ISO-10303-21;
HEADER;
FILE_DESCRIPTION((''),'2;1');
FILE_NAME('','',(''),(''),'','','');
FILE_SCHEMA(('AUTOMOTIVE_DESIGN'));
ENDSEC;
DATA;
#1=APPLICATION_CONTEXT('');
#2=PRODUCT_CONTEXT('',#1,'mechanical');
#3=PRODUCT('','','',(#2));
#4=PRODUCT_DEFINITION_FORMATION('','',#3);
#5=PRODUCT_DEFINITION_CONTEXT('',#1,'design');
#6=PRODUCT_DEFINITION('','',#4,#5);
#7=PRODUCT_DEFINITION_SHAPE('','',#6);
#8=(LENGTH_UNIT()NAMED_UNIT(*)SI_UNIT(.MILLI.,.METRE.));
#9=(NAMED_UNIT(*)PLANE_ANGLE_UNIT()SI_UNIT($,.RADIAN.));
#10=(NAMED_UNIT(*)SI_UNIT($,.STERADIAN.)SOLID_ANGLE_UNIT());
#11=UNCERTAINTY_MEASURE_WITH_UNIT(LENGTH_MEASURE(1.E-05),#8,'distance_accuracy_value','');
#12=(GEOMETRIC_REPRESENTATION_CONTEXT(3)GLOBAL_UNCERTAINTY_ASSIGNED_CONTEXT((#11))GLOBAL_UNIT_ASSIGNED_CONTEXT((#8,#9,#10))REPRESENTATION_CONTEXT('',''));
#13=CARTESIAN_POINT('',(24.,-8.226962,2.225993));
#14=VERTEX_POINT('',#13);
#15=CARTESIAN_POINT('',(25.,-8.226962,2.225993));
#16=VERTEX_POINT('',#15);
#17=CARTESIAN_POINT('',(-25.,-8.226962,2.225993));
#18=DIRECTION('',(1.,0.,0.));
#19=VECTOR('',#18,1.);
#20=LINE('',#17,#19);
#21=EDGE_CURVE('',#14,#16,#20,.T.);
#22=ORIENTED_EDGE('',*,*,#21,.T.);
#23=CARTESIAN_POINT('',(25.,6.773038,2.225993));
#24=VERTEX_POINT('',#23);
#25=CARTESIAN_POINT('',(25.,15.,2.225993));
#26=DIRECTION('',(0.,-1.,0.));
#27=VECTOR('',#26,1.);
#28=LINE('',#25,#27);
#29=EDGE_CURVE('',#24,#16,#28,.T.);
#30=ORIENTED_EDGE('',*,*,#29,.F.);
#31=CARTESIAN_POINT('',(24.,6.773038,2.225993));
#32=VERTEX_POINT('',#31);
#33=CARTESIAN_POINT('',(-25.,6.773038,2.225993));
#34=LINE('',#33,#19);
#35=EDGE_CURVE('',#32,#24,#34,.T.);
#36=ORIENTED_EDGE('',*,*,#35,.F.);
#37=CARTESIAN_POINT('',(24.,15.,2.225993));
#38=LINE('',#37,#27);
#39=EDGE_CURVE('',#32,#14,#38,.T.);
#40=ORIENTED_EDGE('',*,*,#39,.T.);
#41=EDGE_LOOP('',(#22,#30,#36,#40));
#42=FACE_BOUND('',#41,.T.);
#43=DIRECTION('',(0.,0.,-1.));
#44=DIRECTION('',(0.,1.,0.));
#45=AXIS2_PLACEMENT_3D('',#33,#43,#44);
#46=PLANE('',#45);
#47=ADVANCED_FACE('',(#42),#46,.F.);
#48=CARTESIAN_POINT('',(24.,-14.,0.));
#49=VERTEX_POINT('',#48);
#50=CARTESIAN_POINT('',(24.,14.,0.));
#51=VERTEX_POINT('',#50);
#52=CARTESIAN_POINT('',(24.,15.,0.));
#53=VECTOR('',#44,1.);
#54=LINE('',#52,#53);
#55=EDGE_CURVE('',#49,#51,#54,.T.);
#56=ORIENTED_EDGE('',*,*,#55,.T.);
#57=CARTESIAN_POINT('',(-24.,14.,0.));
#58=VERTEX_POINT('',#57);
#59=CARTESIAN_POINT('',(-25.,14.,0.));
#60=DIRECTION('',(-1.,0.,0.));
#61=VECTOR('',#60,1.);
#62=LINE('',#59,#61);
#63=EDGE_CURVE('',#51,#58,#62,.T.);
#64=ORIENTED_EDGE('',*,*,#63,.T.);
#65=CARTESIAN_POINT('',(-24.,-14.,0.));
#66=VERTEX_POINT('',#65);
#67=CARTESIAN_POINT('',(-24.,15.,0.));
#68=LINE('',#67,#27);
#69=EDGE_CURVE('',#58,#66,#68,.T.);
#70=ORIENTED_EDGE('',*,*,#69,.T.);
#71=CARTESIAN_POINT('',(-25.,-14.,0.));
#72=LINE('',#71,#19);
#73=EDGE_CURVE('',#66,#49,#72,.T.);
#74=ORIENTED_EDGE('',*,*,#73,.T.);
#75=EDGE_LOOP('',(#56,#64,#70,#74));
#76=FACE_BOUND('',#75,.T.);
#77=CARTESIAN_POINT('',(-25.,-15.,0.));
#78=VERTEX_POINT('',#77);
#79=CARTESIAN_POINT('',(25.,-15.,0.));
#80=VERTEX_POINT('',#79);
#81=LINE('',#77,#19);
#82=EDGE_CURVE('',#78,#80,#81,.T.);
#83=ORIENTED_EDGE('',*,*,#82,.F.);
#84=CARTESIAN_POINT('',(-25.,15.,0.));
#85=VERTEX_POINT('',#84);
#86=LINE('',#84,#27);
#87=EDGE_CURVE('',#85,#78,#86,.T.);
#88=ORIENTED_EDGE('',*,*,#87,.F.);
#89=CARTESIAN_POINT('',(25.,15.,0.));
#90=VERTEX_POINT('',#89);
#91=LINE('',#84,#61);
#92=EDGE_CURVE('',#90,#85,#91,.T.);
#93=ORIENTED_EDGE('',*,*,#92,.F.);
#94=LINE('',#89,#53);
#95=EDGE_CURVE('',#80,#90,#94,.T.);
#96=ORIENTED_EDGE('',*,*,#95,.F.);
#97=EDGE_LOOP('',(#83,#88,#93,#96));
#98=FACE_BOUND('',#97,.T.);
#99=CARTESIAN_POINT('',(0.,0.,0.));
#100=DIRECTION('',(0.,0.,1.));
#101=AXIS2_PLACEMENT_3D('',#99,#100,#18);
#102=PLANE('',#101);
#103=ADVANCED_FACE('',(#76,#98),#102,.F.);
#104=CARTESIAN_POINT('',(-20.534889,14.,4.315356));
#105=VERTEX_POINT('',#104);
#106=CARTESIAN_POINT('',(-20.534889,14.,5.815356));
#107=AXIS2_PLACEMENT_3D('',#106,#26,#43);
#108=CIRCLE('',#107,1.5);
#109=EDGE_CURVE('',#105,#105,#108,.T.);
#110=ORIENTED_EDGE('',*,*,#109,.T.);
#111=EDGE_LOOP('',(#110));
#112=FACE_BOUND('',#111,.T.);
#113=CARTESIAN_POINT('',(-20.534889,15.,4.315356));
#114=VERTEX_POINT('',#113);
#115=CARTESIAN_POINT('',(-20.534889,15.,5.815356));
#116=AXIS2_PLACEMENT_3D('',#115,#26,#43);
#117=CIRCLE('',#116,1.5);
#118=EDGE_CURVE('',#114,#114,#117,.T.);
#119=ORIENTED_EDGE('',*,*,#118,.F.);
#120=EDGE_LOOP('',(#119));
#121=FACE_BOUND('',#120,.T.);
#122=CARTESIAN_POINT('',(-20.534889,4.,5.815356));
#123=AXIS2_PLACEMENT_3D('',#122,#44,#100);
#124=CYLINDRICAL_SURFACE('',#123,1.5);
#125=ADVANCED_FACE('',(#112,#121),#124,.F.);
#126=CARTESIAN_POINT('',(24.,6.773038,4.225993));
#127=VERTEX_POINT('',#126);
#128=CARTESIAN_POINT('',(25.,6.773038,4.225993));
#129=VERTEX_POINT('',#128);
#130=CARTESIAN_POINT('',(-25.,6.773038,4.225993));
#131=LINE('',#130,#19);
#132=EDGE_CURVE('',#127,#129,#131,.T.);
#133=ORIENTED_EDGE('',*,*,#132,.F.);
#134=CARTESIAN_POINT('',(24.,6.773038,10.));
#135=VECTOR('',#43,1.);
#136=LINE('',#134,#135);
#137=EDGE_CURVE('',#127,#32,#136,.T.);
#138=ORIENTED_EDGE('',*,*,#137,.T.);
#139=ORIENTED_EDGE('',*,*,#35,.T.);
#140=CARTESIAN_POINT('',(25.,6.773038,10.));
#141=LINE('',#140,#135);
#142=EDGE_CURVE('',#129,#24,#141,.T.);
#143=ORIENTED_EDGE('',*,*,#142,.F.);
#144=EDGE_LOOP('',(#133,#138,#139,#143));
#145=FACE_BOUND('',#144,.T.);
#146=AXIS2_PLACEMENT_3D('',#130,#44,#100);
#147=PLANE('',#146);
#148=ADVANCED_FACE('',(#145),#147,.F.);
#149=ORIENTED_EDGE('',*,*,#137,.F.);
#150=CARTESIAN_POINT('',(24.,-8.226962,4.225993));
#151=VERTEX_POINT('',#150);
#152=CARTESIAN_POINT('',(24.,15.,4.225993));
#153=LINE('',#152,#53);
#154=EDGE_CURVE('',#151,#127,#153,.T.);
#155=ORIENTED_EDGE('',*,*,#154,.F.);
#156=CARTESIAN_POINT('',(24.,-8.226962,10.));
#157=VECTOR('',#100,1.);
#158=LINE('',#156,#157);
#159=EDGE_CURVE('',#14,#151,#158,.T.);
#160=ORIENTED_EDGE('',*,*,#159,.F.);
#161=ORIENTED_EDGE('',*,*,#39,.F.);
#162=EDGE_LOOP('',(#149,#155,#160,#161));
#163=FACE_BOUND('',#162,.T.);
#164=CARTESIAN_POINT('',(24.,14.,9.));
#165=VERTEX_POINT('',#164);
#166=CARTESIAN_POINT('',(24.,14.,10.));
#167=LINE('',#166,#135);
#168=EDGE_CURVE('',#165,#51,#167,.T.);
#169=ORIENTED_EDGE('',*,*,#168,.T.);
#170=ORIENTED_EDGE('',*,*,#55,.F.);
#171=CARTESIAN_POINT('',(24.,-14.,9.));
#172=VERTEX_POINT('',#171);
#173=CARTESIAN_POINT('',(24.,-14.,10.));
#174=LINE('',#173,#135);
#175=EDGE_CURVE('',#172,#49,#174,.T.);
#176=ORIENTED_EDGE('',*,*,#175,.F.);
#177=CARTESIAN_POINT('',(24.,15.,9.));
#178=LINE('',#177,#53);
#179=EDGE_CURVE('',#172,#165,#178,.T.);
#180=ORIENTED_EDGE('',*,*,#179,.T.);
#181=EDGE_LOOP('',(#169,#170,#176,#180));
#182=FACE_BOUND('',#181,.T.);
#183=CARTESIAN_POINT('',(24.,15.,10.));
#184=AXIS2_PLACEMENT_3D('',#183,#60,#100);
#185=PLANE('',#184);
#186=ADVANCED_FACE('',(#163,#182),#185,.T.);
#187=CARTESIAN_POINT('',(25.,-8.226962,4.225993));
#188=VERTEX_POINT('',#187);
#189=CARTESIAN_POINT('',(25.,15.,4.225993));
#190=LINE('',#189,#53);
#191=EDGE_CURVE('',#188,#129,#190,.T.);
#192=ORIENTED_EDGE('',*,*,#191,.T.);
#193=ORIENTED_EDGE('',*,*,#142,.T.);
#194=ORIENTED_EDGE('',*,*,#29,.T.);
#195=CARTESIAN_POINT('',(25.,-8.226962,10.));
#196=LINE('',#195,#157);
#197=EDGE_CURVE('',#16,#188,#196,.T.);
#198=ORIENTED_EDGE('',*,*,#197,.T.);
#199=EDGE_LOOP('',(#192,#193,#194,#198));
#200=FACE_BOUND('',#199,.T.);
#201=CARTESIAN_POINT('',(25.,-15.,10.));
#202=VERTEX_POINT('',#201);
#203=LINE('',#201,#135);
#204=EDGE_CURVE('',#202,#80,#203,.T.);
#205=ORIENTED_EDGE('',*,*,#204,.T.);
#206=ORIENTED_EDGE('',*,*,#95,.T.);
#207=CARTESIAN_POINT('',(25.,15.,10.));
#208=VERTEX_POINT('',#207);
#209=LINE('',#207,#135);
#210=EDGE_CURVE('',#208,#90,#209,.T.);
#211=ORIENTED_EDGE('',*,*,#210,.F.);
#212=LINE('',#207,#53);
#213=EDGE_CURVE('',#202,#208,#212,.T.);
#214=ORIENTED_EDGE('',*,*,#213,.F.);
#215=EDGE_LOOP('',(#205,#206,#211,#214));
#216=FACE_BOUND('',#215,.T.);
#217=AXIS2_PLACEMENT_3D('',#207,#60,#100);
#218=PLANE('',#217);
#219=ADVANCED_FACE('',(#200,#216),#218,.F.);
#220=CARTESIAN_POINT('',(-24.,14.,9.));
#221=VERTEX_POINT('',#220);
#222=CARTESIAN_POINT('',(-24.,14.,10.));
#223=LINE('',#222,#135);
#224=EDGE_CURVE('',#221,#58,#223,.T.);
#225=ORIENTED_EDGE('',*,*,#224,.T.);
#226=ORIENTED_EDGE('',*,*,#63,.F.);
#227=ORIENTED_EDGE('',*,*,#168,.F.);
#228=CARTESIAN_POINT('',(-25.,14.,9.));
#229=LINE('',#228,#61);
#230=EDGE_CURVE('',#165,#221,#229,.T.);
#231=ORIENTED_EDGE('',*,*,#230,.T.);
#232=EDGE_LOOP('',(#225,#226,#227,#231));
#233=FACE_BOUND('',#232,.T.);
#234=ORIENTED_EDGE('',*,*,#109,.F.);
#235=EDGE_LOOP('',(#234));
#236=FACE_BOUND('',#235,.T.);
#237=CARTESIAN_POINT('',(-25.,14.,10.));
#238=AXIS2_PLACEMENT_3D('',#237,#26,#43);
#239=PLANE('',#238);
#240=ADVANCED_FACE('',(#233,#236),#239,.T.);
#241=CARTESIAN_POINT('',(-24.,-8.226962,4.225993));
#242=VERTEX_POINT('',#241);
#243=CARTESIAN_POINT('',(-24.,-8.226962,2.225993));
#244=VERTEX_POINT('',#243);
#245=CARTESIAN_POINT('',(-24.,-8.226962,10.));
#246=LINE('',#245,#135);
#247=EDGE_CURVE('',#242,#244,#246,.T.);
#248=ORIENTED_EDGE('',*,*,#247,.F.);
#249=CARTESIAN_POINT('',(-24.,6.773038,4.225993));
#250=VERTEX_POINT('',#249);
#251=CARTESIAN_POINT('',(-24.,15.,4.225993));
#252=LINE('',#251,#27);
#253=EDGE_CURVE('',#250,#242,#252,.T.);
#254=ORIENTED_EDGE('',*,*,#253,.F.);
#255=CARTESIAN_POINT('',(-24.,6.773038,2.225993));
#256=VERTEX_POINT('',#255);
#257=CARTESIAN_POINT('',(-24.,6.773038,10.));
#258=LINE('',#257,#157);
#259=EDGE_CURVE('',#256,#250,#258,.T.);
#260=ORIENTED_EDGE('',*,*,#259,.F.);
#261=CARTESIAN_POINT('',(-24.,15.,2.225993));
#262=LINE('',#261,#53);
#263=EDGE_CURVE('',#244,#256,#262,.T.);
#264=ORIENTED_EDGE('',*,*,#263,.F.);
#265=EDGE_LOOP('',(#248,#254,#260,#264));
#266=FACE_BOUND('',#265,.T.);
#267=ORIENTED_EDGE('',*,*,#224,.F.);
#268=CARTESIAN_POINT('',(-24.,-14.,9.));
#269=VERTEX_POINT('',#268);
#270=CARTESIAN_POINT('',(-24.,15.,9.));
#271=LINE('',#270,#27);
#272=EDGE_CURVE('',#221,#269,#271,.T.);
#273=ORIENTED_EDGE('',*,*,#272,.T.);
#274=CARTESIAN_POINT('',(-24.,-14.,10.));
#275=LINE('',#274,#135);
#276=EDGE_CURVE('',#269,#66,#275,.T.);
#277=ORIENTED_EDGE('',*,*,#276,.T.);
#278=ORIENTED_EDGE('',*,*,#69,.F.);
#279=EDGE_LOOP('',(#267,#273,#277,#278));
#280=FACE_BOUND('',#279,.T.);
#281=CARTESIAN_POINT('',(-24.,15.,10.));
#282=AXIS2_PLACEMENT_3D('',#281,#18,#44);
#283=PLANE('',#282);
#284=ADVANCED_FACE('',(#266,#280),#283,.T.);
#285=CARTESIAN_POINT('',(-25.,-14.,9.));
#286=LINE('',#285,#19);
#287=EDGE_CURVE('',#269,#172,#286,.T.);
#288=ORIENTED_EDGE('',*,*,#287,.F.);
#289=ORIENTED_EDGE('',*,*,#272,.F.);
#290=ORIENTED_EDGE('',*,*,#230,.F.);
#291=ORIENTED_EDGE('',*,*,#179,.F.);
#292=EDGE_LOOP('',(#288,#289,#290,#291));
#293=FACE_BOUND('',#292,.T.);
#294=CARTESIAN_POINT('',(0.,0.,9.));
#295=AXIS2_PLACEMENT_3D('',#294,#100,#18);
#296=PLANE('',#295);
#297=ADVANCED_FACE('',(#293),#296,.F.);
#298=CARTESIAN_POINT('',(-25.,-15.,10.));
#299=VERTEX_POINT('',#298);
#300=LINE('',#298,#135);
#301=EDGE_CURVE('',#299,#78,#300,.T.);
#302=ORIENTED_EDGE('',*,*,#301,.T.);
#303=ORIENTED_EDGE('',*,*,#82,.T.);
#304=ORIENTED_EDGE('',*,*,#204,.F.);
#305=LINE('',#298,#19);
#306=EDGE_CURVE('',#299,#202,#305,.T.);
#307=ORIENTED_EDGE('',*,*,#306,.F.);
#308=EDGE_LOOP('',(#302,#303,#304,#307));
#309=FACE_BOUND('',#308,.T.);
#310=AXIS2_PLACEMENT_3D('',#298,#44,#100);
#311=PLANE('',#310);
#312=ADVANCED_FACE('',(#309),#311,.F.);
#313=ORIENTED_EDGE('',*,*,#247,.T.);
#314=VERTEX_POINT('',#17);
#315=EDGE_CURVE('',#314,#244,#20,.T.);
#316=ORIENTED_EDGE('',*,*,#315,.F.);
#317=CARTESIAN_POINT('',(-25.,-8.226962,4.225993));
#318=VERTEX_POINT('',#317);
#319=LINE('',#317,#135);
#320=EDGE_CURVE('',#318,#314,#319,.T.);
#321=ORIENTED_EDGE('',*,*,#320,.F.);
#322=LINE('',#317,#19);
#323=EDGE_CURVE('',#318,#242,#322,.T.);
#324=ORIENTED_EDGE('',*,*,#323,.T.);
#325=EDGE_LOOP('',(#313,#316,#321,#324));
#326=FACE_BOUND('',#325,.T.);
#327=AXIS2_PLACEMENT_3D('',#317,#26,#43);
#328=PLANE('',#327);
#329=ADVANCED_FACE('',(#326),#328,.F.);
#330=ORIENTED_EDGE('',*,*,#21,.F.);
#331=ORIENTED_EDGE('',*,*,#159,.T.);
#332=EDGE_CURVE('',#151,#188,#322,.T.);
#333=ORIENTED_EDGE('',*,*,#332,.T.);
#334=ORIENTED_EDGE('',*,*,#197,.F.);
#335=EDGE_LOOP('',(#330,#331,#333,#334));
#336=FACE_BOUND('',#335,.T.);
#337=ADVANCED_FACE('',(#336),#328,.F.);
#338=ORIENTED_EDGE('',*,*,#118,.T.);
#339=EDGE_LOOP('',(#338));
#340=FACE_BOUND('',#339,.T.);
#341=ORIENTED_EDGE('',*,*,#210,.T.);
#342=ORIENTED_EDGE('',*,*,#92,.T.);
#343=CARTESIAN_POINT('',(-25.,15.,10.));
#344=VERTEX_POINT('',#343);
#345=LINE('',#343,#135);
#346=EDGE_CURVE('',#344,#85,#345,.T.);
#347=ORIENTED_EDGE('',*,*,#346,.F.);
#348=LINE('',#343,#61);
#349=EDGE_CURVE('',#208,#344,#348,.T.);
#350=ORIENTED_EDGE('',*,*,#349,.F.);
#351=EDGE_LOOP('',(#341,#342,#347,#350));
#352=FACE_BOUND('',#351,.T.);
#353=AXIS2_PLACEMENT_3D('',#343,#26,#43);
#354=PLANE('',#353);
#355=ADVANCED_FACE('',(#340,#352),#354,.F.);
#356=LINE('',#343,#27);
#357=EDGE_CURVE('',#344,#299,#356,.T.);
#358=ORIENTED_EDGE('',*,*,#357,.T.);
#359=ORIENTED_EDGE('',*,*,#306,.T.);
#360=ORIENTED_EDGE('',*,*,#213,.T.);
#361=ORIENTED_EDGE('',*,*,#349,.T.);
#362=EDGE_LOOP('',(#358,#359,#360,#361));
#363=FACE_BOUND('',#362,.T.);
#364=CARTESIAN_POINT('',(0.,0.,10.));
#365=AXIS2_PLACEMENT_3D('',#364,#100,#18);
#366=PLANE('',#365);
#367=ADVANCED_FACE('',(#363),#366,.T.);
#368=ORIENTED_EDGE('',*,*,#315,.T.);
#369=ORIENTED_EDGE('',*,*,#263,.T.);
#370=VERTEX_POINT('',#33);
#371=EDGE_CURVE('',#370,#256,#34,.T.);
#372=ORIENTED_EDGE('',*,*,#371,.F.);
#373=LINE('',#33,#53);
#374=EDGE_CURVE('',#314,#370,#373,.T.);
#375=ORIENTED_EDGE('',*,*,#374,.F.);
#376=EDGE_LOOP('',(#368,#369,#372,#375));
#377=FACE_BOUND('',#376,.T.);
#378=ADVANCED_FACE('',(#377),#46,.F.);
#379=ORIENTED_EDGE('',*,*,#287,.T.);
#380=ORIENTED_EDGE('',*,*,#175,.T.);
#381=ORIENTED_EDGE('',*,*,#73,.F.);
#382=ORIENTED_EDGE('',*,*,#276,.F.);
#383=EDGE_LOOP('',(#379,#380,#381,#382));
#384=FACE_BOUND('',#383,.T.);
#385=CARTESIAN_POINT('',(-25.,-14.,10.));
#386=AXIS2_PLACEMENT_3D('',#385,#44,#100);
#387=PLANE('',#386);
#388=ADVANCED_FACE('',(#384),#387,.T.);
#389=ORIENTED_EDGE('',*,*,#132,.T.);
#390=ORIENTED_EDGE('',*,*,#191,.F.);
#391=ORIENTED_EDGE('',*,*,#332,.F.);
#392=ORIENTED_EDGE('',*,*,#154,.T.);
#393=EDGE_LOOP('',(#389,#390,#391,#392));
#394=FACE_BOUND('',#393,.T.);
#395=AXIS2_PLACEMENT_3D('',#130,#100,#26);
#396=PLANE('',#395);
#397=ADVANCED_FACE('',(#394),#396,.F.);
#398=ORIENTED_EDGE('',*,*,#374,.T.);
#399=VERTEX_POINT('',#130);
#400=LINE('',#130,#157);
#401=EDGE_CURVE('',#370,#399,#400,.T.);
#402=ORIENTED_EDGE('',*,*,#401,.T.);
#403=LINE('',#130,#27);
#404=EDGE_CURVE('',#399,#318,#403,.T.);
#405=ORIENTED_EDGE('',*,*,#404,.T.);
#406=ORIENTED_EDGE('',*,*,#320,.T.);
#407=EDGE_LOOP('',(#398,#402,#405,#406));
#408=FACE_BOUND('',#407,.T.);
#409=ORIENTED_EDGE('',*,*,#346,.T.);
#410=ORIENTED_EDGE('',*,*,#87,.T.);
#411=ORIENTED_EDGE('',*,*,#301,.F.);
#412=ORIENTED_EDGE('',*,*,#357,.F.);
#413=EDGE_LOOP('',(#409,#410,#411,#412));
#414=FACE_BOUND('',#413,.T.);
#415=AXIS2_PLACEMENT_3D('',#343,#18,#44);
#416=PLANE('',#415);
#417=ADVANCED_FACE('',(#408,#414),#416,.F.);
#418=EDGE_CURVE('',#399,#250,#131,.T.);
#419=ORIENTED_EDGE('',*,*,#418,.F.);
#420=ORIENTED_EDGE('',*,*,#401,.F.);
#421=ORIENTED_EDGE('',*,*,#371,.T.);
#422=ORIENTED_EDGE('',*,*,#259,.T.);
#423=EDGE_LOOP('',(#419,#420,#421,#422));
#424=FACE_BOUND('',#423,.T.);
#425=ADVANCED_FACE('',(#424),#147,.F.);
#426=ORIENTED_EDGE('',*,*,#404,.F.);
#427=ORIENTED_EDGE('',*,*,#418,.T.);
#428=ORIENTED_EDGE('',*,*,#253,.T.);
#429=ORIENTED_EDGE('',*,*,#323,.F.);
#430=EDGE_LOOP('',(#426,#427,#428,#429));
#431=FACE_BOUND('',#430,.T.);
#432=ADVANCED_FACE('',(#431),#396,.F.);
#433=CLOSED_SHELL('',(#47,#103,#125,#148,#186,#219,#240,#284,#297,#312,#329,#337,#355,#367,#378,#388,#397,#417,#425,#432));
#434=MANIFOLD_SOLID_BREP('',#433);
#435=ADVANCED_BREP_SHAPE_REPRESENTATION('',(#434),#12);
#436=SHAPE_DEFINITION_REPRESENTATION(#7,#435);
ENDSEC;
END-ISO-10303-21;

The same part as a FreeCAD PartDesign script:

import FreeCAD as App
import Part
import Sketcher
from FreeCAD import Vector
Q = App.Units.Quantity


def faces_at(feature, points):
    """Names of the faces that lie closest to the given points."""
    faces = feature.Shape.Faces
    near = lambda p: min(range(len(faces)), key=lambda i: faces[i].distToShape(Part.Vertex(*p))[0])
    return sorted({f"Face{near(p) + 1}" for p in points})


def add_polygon(sketch, points):
    """Adds a closed chain of lines whose ends are joined by coincident constraints."""
    first, n = sketch.GeometryCount, len(points)
    for a, b in zip(points, points[1:] + points[:1]):
        sketch.addGeometry(Part.LineSegment(App.Vector(*a, 0), App.Vector(*b, 0)), False)
    for i in range(n):
        sketch.addConstraint(Sketcher.Constraint("Coincident", first + i, 2, first + (i + 1) % n, 1))

doc = App.newDocument("Part")
params = doc.addObject("Spreadsheet::Sheet", "Params")
for row, (alias, value) in enumerate([
    ("sketch1_width", "50 mm"),
    ("sketch1_height", "30 mm"),
    ("pad1_length", "10 mm"),
    ("thickness_wall", "1 mm"),
    ("sketch2_width", "15 mm"),
    ("sketch2_height", "2 mm"),
    ("sketch3_diameter", "3 mm"),
    ("pocket2_length", "21 mm"),
], start=1):
    params.set(f"A{row}", alias)
    params.set(f"B{row}", "=" + value)
    params.setAlias(f"B{row}", alias)

body = doc.addObject("PartDesign::Body", "Body")

# Sketch on XY plane
sketch1 = body.newObject("Sketcher::SketchObject", "Sketch")
sketch1.AttachmentSupport = (doc.getObject("XY_Plane"), [""])
sketch1.MapMode = "FlatFace"
add_polygon(sketch1, [(-25, 15), (-25, -15), (25, -15), (25, 15)])  # lines 0-3
sketch1.addConstraint([
    Sketcher.Constraint("Vertical", 0),
    Sketcher.Constraint("Horizontal", 1),
    Sketcher.Constraint("Vertical", 2),
    Sketcher.Constraint("Horizontal", 3),
    Sketcher.Constraint("Symmetric", 0, 2, 2, 2, -1, 1),
    Sketcher.Constraint("DistanceX", 1, 1, 1, 2, Q("50 mm")),
    Sketcher.Constraint("DistanceY", 0, 2, 0, 1, Q("30 mm")),
])
sketch1.setExpression("Constraints[9]", "Params.sketch1_width")
sketch1.setExpression("Constraints[10]", "Params.sketch1_height")
pad1 = body.newObject("PartDesign::Pad", "Pad")
pad1.Profile = sketch1
pad1.setExpression("Length", "Params.pad1_length")
doc.recompute()

thickness = body.newObject("PartDesign::Thickness", "Thickness")
thickness.Base = (pad1, faces_at(pad1, [(0, 0, 0)]))
thickness.setExpression("Value", "Params.thickness_wall")
thickness.Reversed = True
thickness.Join = "Intersection"

# Sketch on YZ plane
sketch2 = body.newObject("Sketcher::SketchObject", "Sketch001")
sketch2.AttachmentSupport = (doc.getObject("YZ_Plane"), [""])
sketch2.MapMode = "FlatFace"
sketch2.AttachmentOffset = App.Placement(Vector(0, 0, 35), App.Rotation())
add_polygon(sketch2, [(6.773038, 4.225993), (-8.226962, 4.225993), (-8.226962, 2.225993), (6.773038, 2.225993)])  # lines 0-3
sketch2.addConstraint([
    Sketcher.Constraint("Horizontal", 0),
    Sketcher.Constraint("Vertical", 1),
    Sketcher.Constraint("Horizontal", 2),
    Sketcher.Constraint("Vertical", 3),
    Sketcher.Constraint("DistanceX", 0, 2, 0, 1, Q("15 mm")),
    Sketcher.Constraint("DistanceY", 1, 2, 1, 1, Q("2 mm")),
    Sketcher.Constraint("DistanceX", 0, 2, -1, 1, Q("8.226962 mm")),
    Sketcher.Constraint("DistanceY", -1, 1, 0, 2, Q("4.225993 mm")),
])
sketch2.setExpression("Constraints[8]", "Params.sketch2_width")
sketch2.setExpression("Constraints[9]", "Params.sketch2_height")
pocket1 = body.newObject("PartDesign::Pocket", "Pocket")
pocket1.Profile = sketch2
pocket1.Type = "ThroughAll"

# Sketch on XZ plane
sketch3 = body.newObject("Sketcher::SketchObject", "Sketch002")
sketch3.AttachmentSupport = (doc.getObject("XZ_Plane"), [""])
sketch3.MapMode = "FlatFace"
sketch3.AttachmentOffset = App.Placement(Vector(0, 0, -25), App.Rotation())
sketch3.addGeometry(Part.Circle(Vector(-20.534889, 5.815356, 0), Vector(0, 0, 1), 1.5), False)
sketch3.addConstraint([
    Sketcher.Constraint("Diameter", 0, Q("3 mm")),
    Sketcher.Constraint("DistanceX", 0, 3, -1, 1, Q("20.534889 mm")),
    Sketcher.Constraint("DistanceY", -1, 1, 0, 3, Q("5.815356 mm")),
])
sketch3.setExpression("Constraints[0]", "Params.sketch3_diameter")
pocket2 = body.newObject("PartDesign::Pocket", "Pocket001")
pocket2.Profile = sketch3
pocket2.setExpression("Length", "Params.pocket2_length")
pocket2.Reversed = True

doc.recompute()
